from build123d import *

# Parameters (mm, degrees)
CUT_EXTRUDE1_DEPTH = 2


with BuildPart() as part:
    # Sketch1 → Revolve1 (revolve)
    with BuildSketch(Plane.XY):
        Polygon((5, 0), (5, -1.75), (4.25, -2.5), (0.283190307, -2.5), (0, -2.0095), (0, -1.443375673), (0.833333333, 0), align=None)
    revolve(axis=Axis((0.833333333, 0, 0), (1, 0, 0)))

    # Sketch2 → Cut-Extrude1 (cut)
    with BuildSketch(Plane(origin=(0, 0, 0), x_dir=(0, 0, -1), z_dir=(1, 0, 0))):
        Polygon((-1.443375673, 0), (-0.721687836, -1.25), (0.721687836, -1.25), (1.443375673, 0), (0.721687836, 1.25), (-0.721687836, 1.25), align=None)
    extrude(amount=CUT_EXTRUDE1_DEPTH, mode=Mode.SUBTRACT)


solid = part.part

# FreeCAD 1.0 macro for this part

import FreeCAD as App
import Part
import Sketcher
from FreeCAD import Vector
Q = App.Units.Quantity

doc = App.newDocument("Part")
body = doc.addObject("PartDesign::Body", "Body")

sketch1 = doc.addObject("Sketcher::SketchObject", "Sketch")
body.addObject(sketch1)
sketch1.AttachmentSupport = (doc.XY_Plane, [""])
sketch1.MapMode = "FlatFace"
sketch1.addGeometry([
    Part.LineSegment(Vector(5, -1.8, 0), Vector(5, 0, 0)),
    Part.LineSegment(Vector(5, 0, 0), Vector(0.8, 0, 0)),
    Part.LineSegment(Vector(0.8, 0, 0), Vector(0, -1.4, 0)),
    Part.LineSegment(Vector(0, -1.4, 0), Vector(0, -2, 0)),
    Part.LineSegment(Vector(0, -2, 0), Vector(0.3, -2.5, 0)),
    Part.LineSegment(Vector(0.3, -2.5, 0), Vector(4.2, -2.5, 0)),
    Part.LineSegment(Vector(4.2, -2.5, 0), Vector(5, -1.8, 0)),
], False)
sketch1.addConstraint([
    Sketcher.Constraint("Coincident", 0, 2, 1, 1),
    Sketcher.Constraint("Coincident", 1, 2, 2, 1),
    Sketcher.Constraint("Coincident", 2, 2, 3, 1),
    Sketcher.Constraint("Coincident", 3, 2, 4, 1),
    Sketcher.Constraint("Coincident", 4, 2, 5, 1),
    Sketcher.Constraint("Coincident", 5, 2, 6, 1),
    Sketcher.Constraint("Coincident", 6, 2, 0, 1),
    Sketcher.Constraint("Vertical", 0),
    Sketcher.Constraint("Horizontal", 1),
    Sketcher.Constraint("Vertical", 3),
    Sketcher.Constraint("Horizontal", 5),
    Sketcher.Constraint("PointOnObject", 0, 2, -1),
    Sketcher.Constraint("PointOnObject", 2, 2, -2),
    Sketcher.Constraint("Angle", 2, Q("-120 deg")),
    Sketcher.Constraint("Angle", 4, Q("-60 deg")),
    Sketcher.Constraint("Angle", 6, Q("45 deg")),
    Sketcher.Constraint("DistanceX", -1, 1, 0, 2, Q("5 mm")),
    Sketcher.Constraint("DistanceY", 0, 1, 0, 2, Q("1.75 mm")),
    Sketcher.Constraint("DistanceY", 4, 2, -1, 1, Q("2.5 mm")),
    Sketcher.Constraint("DistanceX", 5, 1, 5, 2, Q("3.96681 mm")),
    Sketcher.Constraint("DistanceX", 1, 2, 1, 1, Q("4.166667 mm")),
])
revolution = doc.addObject("PartDesign::Revolution", "Revolution")
body.addObject(revolution)
revolution.Profile = sketch1
revolution.ReferenceAxis = (sketch1, ["H_Axis"])
revolution.Angle = 360

sketch2 = doc.addObject("Sketcher::SketchObject", "Sketch001")
body.addObject(sketch2)
sketch2.AttachmentSupport = (doc.YZ_Plane, [""])
sketch2.MapMode = "FlatFace"
sketch2.addGeometry([
    Part.LineSegment(Vector(0, 1.4, 0), Vector(-1.2, 0.7, 0)),
    Part.LineSegment(Vector(-1.2, 0.7, 0), Vector(-1.2, -0.7, 0)),
    Part.LineSegment(Vector(-1.2, -0.7, 0), Vector(0, -1.4, 0)),
    Part.LineSegment(Vector(0, -1.4, 0), Vector(1.2, -0.7, 0)),
    Part.LineSegment(Vector(1.2, -0.7, 0), Vector(1.2, 0.7, 0)),
    Part.LineSegment(Vector(1.2, 0.7, 0), Vector(0, 1.4, 0)),
], False)
sketch2.addConstraint([
    Sketcher.Constraint("Coincident", 0, 2, 1, 1),
    Sketcher.Constraint("Coincident", 1, 2, 2, 1),
    Sketcher.Constraint("Coincident", 2, 2, 3, 1),
    Sketcher.Constraint("Coincident", 3, 2, 4, 1),
    Sketcher.Constraint("Coincident", 4, 2, 5, 1),
    Sketcher.Constraint("Coincident", 5, 2, 0, 1),
    Sketcher.Constraint("Vertical", 1),
    Sketcher.Constraint("Vertical", 4),
    Sketcher.Constraint("Symmetric", 0, 2, 3, 2, -1, 1),
    Sketcher.Constraint("Symmetric", 2, 2, 5, 2, -1, 1),
    Sketcher.Constraint("PointOnObject", 2, 2, -2),
    Sketcher.Constraint("Parallel", 2, 5),
    Sketcher.Constraint("Horizontal", 1, 2, 3, 2),
    Sketcher.Constraint("Angle", 0, Q("-150 deg")),
    Sketcher.Constraint("DistanceX", 1, 2, 3, 2, Q("2.5 mm")),
    Sketcher.Constraint("DistanceY", 1, 2, 1, 1, Q("1.443376 mm")),
])
pocket1 = doc.addObject("PartDesign::Pocket", "Pocket")
body.addObject(pocket1)
pocket1.Profile = sketch2
pocket1.Length = 2
pocket1.Reversed = True

doc.recompute()
